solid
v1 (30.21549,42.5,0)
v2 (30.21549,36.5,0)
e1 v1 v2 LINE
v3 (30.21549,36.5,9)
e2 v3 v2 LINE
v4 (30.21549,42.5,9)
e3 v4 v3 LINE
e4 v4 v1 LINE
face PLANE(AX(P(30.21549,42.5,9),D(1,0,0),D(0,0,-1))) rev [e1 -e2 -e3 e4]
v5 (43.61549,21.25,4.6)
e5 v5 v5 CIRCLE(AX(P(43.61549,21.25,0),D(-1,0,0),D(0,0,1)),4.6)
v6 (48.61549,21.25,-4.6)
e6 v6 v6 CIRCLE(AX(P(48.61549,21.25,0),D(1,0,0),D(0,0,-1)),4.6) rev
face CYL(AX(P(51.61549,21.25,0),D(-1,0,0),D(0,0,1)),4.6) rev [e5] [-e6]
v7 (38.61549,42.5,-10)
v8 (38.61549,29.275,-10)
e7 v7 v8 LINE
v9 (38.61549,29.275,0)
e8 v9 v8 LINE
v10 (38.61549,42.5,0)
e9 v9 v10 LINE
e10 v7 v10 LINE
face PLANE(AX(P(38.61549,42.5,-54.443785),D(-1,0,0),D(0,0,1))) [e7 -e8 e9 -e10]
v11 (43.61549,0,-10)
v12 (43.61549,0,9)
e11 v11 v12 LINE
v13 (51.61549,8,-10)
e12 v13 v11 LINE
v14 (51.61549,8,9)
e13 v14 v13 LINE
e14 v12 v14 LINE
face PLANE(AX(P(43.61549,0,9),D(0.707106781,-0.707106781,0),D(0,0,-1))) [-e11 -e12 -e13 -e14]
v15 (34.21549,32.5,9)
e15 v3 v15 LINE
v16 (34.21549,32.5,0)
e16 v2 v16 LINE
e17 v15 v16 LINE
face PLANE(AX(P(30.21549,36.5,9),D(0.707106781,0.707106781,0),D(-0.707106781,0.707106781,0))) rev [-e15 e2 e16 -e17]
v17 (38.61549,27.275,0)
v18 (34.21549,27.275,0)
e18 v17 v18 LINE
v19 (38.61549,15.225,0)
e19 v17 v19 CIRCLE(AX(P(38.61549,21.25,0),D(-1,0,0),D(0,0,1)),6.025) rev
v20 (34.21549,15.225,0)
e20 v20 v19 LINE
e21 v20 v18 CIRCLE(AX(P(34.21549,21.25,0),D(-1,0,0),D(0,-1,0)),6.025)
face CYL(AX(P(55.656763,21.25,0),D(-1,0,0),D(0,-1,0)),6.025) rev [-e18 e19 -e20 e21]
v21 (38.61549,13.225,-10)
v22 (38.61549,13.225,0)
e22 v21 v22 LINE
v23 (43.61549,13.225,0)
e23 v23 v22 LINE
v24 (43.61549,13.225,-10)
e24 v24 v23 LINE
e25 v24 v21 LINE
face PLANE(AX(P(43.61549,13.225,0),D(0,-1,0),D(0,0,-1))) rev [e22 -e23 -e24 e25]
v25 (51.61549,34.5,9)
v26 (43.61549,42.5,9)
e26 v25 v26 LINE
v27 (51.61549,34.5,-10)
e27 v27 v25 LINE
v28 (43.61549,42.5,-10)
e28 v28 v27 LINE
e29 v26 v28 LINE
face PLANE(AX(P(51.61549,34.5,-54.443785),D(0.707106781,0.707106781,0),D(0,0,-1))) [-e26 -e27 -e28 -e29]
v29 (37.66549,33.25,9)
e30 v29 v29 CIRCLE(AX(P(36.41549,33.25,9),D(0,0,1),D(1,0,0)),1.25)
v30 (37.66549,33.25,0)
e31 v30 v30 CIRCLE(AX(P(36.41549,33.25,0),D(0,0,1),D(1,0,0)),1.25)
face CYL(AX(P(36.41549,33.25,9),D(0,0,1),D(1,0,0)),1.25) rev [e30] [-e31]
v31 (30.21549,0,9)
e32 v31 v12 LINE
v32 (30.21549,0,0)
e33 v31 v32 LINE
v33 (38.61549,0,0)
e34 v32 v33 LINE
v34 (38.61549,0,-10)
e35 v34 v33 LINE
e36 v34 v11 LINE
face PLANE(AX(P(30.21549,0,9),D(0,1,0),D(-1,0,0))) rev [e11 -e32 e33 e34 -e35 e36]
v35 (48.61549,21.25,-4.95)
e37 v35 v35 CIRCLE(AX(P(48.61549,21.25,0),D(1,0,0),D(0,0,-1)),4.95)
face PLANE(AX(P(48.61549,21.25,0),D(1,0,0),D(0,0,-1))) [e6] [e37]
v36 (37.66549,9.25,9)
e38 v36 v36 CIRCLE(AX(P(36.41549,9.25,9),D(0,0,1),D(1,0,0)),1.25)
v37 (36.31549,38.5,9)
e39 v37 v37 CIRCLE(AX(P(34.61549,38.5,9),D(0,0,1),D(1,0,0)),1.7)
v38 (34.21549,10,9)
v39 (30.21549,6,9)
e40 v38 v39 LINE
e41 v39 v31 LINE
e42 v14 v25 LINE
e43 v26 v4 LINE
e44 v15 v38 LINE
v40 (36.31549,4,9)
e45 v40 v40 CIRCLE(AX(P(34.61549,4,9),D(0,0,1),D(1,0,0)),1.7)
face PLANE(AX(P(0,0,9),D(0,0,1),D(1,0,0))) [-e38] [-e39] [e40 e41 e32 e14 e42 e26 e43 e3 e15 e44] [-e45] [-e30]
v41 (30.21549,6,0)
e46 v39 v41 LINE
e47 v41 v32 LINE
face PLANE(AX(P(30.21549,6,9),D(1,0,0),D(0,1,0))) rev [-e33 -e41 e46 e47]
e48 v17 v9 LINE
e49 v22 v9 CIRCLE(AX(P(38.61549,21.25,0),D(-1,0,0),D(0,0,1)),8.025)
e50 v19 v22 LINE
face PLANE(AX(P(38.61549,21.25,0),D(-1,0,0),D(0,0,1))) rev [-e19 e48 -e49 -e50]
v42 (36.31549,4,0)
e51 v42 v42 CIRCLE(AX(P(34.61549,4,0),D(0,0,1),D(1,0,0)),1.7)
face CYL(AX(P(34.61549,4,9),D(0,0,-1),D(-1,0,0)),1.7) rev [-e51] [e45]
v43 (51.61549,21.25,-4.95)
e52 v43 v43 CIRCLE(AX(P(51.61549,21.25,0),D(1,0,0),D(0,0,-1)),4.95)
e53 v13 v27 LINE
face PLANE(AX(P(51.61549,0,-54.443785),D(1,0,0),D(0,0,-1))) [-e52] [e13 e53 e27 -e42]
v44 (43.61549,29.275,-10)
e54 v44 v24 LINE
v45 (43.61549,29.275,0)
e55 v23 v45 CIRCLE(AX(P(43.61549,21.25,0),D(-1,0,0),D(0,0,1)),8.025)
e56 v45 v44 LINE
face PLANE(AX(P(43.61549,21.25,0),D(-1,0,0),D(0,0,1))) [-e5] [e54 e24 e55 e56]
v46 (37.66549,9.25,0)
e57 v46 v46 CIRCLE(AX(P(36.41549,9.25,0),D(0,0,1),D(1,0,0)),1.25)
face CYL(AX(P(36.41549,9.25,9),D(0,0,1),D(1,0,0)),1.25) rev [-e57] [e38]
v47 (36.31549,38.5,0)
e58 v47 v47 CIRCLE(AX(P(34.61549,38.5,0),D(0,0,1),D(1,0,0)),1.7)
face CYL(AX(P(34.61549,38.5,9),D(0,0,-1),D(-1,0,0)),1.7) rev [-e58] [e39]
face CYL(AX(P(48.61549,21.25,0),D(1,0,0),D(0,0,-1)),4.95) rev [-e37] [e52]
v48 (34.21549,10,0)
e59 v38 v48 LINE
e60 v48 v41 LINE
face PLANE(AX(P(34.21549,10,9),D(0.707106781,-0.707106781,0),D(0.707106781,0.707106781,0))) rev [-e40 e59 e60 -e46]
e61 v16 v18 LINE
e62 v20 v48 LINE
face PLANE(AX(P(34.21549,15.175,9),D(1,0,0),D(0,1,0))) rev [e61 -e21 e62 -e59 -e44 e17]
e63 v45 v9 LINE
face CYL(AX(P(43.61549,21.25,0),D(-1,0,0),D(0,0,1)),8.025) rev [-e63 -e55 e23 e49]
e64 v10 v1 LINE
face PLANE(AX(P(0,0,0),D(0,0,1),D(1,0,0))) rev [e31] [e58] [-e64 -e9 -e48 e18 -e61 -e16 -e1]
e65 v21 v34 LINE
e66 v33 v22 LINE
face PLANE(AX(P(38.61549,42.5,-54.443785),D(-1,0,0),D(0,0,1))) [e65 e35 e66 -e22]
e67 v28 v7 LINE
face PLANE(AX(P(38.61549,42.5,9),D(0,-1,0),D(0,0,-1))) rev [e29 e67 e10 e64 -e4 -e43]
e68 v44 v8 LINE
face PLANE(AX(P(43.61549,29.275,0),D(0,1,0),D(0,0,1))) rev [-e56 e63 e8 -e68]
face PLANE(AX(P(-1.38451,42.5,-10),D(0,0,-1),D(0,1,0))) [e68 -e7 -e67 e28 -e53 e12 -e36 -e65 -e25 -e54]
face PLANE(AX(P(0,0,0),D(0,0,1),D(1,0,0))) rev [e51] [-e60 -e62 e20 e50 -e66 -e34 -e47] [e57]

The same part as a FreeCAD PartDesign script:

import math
import FreeCAD as App
import Part
import Sketcher
from FreeCAD import Vector


def edges_at(feature, points):
    """Names of the edges that pass closest to the given points."""
    edges = feature.Shape.Edges
    near = lambda p: min(range(len(edges)), key=lambda i: edges[i].distToShape(Part.Vertex(*p))[0])
    return sorted({f"Edge{near(p) + 1}" for p in points})

doc = App.newDocument("Part")
body = doc.addObject("PartDesign::Body", "Body")

# Sketch on XY plane
sketch1 = body.newObject("Sketcher::SketchObject", "Sketch")
sketch1.AttachmentSupport = (doc.getObject("XY_Plane"), [""])
sketch1.MapMode = "FlatFace"
sketch1.addGeometry([
    Part.LineSegment(Vector(38.6, 15.2, 0), Vector(38.6, 27.3, 0)),  # 0
    Part.LineSegment(Vector(38.6, 27.3, 0), Vector(38.6, 42.5, 0)),  # 1
    Part.LineSegment(Vector(38.6, 42.5, 0), Vector(30.2, 42.5, 0)),  # 2
    Part.LineSegment(Vector(30.2, 42.5, 0), Vector(30.2, 36.5, 0)),  # 3
    Part.LineSegment(Vector(30.2, 36.5, 0), Vector(34.2, 32.5, 0)),  # 4
    Part.LineSegment(Vector(34.2, 32.5, 0), Vector(34.2, 27.3, 0)),  # 5
    Part.LineSegment(Vector(34.2, 27.3, 0), Vector(34.2, 15.2, 0)),  # 6
    Part.LineSegment(Vector(34.2, 15.2, 0), Vector(34.2, 10, 0)),  # 7
    Part.LineSegment(Vector(34.2, 10, 0), Vector(30.2, 6, 0)),  # 8
    Part.LineSegment(Vector(30.2, 6, 0), Vector(30.2, 0, 0)),  # 9
    Part.LineSegment(Vector(30.2, 0, 0), Vector(38.6, 0, 0)),  # 10
    Part.LineSegment(Vector(38.6, 0, 0), Vector(38.6, 15.2, 0)),  # 11
    Part.Circle(Vector(34.6, 4, 0), Vector(0, 0, 1), 1.7),  # 12
    Part.Circle(Vector(34.6, 38.5, 0), Vector(0, 0, 1), 1.7),  # 13
], False)
sketch1.addConstraint([
    Sketcher.Constraint("Coincident", 0, 2, 1, 1),
    Sketcher.Constraint("Coincident", 1, 2, 2, 1),
    Sketcher.Constraint("Coincident", 2, 2, 3, 1),
    Sketcher.Constraint("Coincident", 3, 2, 4, 1),
    Sketcher.Constraint("Coincident", 4, 2, 5, 1),
    Sketcher.Constraint("Coincident", 5, 2, 6, 1),
    Sketcher.Constraint("Coincident", 6, 2, 7, 1),
    Sketcher.Constraint("Coincident", 7, 2, 8, 1),
    Sketcher.Constraint("Coincident", 8, 2, 9, 1),
    Sketcher.Constraint("Coincident", 9, 2, 10, 1),
    Sketcher.Constraint("Coincident", 10, 2, 11, 1),
    Sketcher.Constraint("Coincident", 11, 2, 0, 1),
    Sketcher.Constraint("Vertical", 0),
    Sketcher.Constraint("Vertical", 1),
    Sketcher.Constraint("Horizontal", 2),
    Sketcher.Constraint("Vertical", 3),
    Sketcher.Constraint("Vertical", 5),
    Sketcher.Constraint("Vertical", 6),
    Sketcher.Constraint("Vertical", 7),
    Sketcher.Constraint("Vertical", 9),
    Sketcher.Constraint("Horizontal", 10),
    Sketcher.Constraint("Vertical", 11),
    Sketcher.Constraint("Equal", 12, 13),
    Sketcher.Constraint("PointOnObject", 9, 2, -1),
    Sketcher.Constraint("Perpendicular", 4, 8),
    Sketcher.Constraint("Horizontal", 0, 2, 5, 2),
    Sketcher.Constraint("Horizontal", 6, 2, 11, 2),
    Sketcher.Constraint("Vertical", 12, 3, 13, 3),
    Sketcher.Constraint("Vertical", 3, 2, 8, 2),
    Sketcher.Constraint("Equal", 5, 7),
    Sketcher.Constraint("Equal", 3, 9),
    Sketcher.Constraint("Equal", 1, 11),
    Sketcher.Constraint("Diameter", 12, 3.4),
    Sketcher.Constraint("DistanceY", 3, 2, 3, 1, 6.0),
    Sketcher.Constraint("DistanceX", 2, 2, 2, 1, 8.4),
    Sketcher.Constraint("DistanceY", -1, 1, 12, 3, 4.0),
    Sketcher.Constraint("DistanceY", -1, 1, 7, 2, 10.0),
    Sketcher.Constraint("DistanceX", 13, 3, 0, 2, 4.0),
    Sketcher.Constraint("DistanceY", 13, 3, 1, 2, 4.0),
    Sketcher.Constraint("DistanceY", 0, 1, 0, 2, 12.15),
    Sketcher.Constraint("DistanceY", -1, 1, 13, 3, 38.5),
    Sketcher.Constraint("DistanceX", -1, 1, 12, 3, 34.61549),
])
pad1 = body.newObject("PartDesign::Pad", "Pad")
pad1.Profile = sketch1
pad1.Length = 9

# Sketch on XY plane
sketch2 = body.newObject("Sketcher::SketchObject", "Sketch001")
sketch2.AttachmentSupport = (doc.getObject("XY_Plane"), [""])
sketch2.MapMode = "FlatFace"
sketch2.AttachmentOffset = App.Placement(Vector(0, 0, 9), App.Rotation())
sketch2.addGeometry([
    Part.LineSegment(Vector(39, 42, 0), Vector(39, 0, 0)),
    Part.LineSegment(Vector(39, 0, 0), Vector(52, 0, 0)),
    Part.LineSegment(Vector(52, 0, 0), Vector(52, 42, 0)),
    Part.LineSegment(Vector(52, 42, 0), Vector(39, 42, 0)),
], False)
sketch2.addConstraint([
    Sketcher.Constraint("Coincident", 0, 2, 1, 1),
    Sketcher.Constraint("Coincident", 1, 2, 2, 1),
    Sketcher.Constraint("Coincident", 2, 2, 3, 1),
    Sketcher.Constraint("Coincident", 3, 2, 0, 1),
    Sketcher.Constraint("Vertical", 0),
    Sketcher.Constraint("Horizontal", 1),
    Sketcher.Constraint("Vertical", 2),
    Sketcher.Constraint("Horizontal", 3),
    Sketcher.Constraint("PointOnObject", 0, 2, -1),
    Sketcher.Constraint("DistanceX", 1, 1, 1, 2, 13.0),
    Sketcher.Constraint("DistanceY", 0, 2, 0, 1, 42.5),
    Sketcher.Constraint("DistanceX", -1, 1, 0, 2, 38.61549),
])
pad2 = body.newObject("PartDesign::Pad", "Pad001")
pad2.Profile = sketch2
pad2.Length = 19
pad2.Reversed = True

# Sketch on YZ plane
sketch3 = body.newObject("Sketcher::SketchObject", "Sketch002")
sketch3.AttachmentSupport = (doc.getObject("YZ_Plane"), [""])
sketch3.MapMode = "FlatFace"
sketch3.AttachmentOffset = App.Placement(Vector(0, 0, 34.21549), App.Rotation())
sketch3.addGeometry(Part.Circle(Vector(21, 0, 0), Vector(0, 0, 1), 6), False)
sketch3.addConstraint([
    Sketcher.Constraint("PointOnObject", 0, 3, -1),
    Sketcher.Constraint("Diameter", 0, 12.05),
    Sketcher.Constraint("DistanceX", -1, 1, 0, 3, 21.25),
])
pocket1 = body.newObject("PartDesign::Pocket", "Pocket")
pocket1.Profile = sketch3
pocket1.Length = 4.4
pocket1.Reversed = True

# Sketch on YZ plane
sketch4 = body.newObject("Sketcher::SketchObject", "Sketch003")
sketch4.AttachmentSupport = (doc.getObject("YZ_Plane"), [""])
sketch4.MapMode = "FlatFace"
sketch4.AttachmentOffset = App.Placement(Vector(0, 0, 38.61549), App.Rotation())
sketch4.addGeometry([
    Part.LineSegment(Vector(29, 0, 0), Vector(29, -10, 0)),
    Part.LineSegment(Vector(29, -10, 0), Vector(13, -10, 0)),
    Part.LineSegment(Vector(13, -10, 0), Vector(13, 0, 0)),
    Part.ArcOfCircle(Part.Circle(Vector(21, 0, 0), Vector(0, 0, 1), 8), math.radians(0), math.radians(180)),
], False)
sketch4.addConstraint([
    Sketcher.Constraint("Coincident", 0, 2, 1, 1),
    Sketcher.Constraint("Coincident", 1, 2, 2, 1),
    Sketcher.Constraint("Tangent", 2, 2, 3, 2),
    Sketcher.Constraint("Tangent", 3, 1, 0, 1),
    Sketcher.Constraint("Vertical", 0),
    Sketcher.Constraint("Horizontal", 1),
    Sketcher.Constraint("Vertical", 2),
    Sketcher.Constraint("PointOnObject", 3, 3, -1),
    Sketcher.Constraint("DistanceY", 0, 2, 0, 1, 10.0),
    Sketcher.Constraint("Radius", 3, 8.025),
    Sketcher.Constraint("DistanceX", -1, 1, 3, 3, 21.25),
])
pocket2 = body.newObject("PartDesign::Pocket", "Pocket001")
pocket2.Profile = sketch4
pocket2.Length = 5
pocket2.Reversed = True

# Sketch on YZ plane
sketch5 = body.newObject("Sketcher::SketchObject", "Sketch004")
sketch5.AttachmentSupport = (doc.getObject("YZ_Plane"), [""])
sketch5.MapMode = "FlatFace"
sketch5.AttachmentOffset = App.Placement(Vector(0, 0, 43.61549), App.Rotation())
sketch5.addGeometry(Part.Circle(Vector(21.2, 0, 0), Vector(0, 0, 1), 4.6), False)
sketch5.addConstraint([
    Sketcher.Constraint("PointOnObject", 0, 3, -1),
    Sketcher.Constraint("Diameter", 0, 9.2),
    Sketcher.Constraint("DistanceX", -1, 1, 0, 3, 21.25),
])
pocket3 = body.newObject("PartDesign::Pocket", "Pocket002")
pocket3.Profile = sketch5
pocket3.Type = "ThroughAll"
pocket3.Reversed = True
doc.recompute()

chamfer = body.newObject("PartDesign::Chamfer", "Chamfer")
chamfer.Base = (pocket3, edges_at(pocket3, [(51.615, 0, -0.5), (51.615, 42.5, -0.5)]))
chamfer.Size = 8

# Sketch on XY plane
sketch6 = body.newObject("Sketcher::SketchObject", "Sketch005")
sketch6.AttachmentSupport = (doc.getObject("XY_Plane"), [""])
sketch6.MapMode = "FlatFace"
sketch6.AttachmentOffset = App.Placement(Vector(0, 0, 9), App.Rotation())
sketch6.addGeometry([
    Part.Circle(Vector(36.4, 33.2, 0), Vector(0, 0, 1), 1.2),
    Part.Circle(Vector(36.4, 9.2, 0), Vector(0, 0, 1), 1.2),
], False)
sketch6.addConstraint([
    Sketcher.Constraint("Equal", 0, 1),
    Sketcher.Constraint("Vertical", 0, 3, 1, 3),
    Sketcher.Constraint("Diameter", 0, 2.5),
    Sketcher.Constraint("DistanceY", 1, 3, 0, 3, 24.0),
    Sketcher.Constraint("DistanceY", -1, 1, 0, 3, 33.25),
    Sketcher.Constraint("DistanceX", -1, 1, 0, 3, 36.41549),
])
doc.recompute()
hole = body.newObject("PartDesign::Hole", "Hole")
hole.Profile = sketch6
hole.ThreadType = "None"
hole.Diameter = 2.5
hole.DepthType = "ThroughAll"

# Sketch on YZ plane
sketch7 = body.newObject("Sketcher::SketchObject", "Sketch006")
sketch7.AttachmentSupport = (doc.getObject("YZ_Plane"), [""])
sketch7.MapMode = "FlatFace"
sketch7.AttachmentOffset = App.Placement(Vector(0, 0, 51.61549), App.Rotation())
sketch7.addGeometry(Part.Circle(Vector(21.2, 0, 0), Vector(0, 0, 1), 5), False)
sketch7.addConstraint([
    Sketcher.Constraint("PointOnObject", 0, 3, -1),
    Sketcher.Constraint("Diameter", 0, 9.9),
    Sketcher.Constraint("DistanceX", -1, 1, 0, 3, 21.25),
])
pocket4 = body.newObject("PartDesign::Pocket", "Pocket003")
pocket4.Profile = sketch7
pocket4.Length = 3

doc.recompute()
